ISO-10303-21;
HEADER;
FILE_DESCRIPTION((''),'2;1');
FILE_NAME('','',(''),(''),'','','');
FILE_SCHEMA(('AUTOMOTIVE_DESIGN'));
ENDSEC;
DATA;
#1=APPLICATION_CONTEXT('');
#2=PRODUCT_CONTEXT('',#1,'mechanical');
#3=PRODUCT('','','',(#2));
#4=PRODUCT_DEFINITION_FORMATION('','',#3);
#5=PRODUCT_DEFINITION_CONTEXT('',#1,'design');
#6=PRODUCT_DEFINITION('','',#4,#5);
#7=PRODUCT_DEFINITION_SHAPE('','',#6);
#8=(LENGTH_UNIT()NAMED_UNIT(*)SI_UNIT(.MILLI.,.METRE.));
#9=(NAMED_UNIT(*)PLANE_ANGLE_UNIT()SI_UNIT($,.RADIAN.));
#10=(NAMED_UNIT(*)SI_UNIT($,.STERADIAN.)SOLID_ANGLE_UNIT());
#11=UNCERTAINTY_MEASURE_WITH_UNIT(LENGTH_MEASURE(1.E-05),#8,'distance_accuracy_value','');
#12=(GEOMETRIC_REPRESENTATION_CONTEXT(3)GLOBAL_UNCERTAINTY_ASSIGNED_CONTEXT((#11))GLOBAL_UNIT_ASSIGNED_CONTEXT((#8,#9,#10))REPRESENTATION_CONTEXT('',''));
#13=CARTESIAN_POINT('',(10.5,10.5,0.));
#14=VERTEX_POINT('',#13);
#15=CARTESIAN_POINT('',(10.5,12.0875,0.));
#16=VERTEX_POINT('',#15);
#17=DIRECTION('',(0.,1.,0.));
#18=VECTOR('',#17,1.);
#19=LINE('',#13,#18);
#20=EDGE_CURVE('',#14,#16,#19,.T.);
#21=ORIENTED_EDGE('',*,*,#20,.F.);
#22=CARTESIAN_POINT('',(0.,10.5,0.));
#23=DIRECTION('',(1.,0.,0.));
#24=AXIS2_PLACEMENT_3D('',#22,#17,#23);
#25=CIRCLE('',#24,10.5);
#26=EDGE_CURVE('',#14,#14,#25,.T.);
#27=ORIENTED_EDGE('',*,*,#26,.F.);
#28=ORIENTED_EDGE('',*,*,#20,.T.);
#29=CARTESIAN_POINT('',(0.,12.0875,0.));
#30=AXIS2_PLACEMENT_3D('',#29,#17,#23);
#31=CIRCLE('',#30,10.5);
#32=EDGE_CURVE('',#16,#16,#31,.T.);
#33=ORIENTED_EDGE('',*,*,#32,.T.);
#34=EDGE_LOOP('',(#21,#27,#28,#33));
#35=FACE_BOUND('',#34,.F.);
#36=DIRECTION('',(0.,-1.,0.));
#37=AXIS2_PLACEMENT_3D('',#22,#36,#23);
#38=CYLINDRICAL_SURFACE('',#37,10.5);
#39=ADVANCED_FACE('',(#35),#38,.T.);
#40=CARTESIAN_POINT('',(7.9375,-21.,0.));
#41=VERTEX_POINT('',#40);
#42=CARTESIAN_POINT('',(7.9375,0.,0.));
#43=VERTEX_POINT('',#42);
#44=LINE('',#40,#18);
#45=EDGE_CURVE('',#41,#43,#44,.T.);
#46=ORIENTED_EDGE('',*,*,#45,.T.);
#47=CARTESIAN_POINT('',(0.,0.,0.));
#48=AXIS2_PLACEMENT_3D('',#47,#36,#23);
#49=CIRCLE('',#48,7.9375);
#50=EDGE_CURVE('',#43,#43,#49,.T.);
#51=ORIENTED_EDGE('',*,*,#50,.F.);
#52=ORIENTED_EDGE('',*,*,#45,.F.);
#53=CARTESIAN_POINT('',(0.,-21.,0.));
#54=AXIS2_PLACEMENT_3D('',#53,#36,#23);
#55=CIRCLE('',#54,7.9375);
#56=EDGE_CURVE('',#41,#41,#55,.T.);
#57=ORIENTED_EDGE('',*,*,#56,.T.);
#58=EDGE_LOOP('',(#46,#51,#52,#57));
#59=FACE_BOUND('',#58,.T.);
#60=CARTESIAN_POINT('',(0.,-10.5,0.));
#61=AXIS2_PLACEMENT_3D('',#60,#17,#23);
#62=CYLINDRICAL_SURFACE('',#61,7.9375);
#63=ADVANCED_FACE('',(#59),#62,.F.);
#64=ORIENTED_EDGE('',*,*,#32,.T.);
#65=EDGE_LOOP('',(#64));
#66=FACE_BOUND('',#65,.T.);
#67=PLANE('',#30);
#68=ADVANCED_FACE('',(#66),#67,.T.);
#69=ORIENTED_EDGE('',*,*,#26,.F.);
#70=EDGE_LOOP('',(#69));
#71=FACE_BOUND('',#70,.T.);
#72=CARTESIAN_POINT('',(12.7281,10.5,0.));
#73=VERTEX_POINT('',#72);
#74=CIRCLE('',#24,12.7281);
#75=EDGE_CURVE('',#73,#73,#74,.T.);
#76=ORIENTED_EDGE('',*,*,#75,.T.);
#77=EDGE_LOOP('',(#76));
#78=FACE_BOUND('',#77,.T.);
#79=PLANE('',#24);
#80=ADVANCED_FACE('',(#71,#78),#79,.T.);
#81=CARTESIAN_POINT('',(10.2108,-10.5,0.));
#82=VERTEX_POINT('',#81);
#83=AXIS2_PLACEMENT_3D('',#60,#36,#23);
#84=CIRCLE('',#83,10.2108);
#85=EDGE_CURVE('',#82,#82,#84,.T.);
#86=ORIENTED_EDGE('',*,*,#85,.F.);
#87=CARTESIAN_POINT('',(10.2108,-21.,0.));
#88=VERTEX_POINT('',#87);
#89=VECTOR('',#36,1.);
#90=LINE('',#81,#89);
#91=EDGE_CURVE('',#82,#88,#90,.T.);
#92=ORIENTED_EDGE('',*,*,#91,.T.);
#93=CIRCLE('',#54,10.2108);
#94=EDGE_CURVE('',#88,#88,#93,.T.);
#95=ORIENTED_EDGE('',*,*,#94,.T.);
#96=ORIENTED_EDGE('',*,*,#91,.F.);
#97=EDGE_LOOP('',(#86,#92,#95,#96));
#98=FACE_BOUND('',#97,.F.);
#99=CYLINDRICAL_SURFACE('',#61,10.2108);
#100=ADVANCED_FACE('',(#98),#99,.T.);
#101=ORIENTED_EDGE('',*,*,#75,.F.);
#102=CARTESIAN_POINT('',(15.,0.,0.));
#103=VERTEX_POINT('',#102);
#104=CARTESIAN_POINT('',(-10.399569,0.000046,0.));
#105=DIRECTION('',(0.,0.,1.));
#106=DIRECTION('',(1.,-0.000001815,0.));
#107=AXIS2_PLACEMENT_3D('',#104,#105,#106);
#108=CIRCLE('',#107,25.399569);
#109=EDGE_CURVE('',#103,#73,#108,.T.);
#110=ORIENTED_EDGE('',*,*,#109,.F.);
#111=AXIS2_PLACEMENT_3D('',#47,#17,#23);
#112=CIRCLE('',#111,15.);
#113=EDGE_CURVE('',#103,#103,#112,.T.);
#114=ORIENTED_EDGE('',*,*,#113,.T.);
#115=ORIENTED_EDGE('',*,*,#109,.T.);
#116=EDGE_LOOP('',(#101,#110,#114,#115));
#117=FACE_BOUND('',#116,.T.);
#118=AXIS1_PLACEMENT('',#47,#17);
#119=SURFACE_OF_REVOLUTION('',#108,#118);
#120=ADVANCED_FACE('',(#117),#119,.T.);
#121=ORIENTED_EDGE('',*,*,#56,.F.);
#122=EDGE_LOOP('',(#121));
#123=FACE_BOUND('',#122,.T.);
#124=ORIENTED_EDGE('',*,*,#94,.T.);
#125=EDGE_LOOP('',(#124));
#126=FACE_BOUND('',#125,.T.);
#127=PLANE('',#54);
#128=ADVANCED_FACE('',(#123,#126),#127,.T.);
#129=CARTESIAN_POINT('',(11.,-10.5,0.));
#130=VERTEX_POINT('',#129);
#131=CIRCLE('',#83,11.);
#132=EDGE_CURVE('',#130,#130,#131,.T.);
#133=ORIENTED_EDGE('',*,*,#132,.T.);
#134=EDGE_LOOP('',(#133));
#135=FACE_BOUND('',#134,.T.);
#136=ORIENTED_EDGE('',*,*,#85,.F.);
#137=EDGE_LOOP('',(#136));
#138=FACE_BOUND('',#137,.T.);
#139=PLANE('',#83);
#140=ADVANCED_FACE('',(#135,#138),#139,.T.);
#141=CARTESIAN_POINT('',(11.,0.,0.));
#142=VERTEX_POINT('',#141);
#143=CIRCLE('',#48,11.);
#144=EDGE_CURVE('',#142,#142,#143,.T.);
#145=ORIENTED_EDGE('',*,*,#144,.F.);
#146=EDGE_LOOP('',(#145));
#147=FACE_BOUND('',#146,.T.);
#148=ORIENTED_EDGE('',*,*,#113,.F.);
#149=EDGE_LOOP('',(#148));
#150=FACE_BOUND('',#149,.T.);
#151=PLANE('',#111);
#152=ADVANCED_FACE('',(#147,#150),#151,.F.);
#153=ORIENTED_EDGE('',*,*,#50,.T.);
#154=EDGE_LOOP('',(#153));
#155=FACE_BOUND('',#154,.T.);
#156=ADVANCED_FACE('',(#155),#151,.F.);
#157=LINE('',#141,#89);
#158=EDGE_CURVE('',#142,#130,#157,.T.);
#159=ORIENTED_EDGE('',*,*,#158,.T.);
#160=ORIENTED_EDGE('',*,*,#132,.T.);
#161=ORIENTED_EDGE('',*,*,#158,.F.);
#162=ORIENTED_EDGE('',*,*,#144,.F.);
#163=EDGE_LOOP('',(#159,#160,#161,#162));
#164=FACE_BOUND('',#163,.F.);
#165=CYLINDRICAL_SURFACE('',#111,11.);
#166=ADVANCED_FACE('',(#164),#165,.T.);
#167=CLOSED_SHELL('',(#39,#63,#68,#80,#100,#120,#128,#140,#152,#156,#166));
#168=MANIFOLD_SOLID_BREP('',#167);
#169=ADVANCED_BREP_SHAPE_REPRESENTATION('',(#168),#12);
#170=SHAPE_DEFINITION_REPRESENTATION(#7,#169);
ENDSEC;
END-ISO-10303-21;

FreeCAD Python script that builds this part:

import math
import FreeCAD as App
import Part
import Sketcher

V = App.Vector

doc = App.newDocument("Part")
body = doc.addObject("PartDesign::Body", "Body")

# Sketch on XY plane
sketch1 = doc.addObject("Sketcher::SketchObject", "Sketch")
body.addObject(sketch1)
sketch1.AttachmentSupport = (doc.XY_Plane, [""])
sketch1.MapMode = "FlatFace"
sketch1.addGeometry([
    Part.LineSegment(V(0, 10, 0), V(0, 0, 0)),
    Part.LineSegment(V(0, 0, 0), V(15, 0, 0)),
    Part.ArcOfCircle(Part.Circle(V(-10, 0, 0), V(0, 0, 1), 25), math.radians(0), math.radians(24)),
    Part.LineSegment(V(13, 10, 0), V(0, 10, 0)),
], False)
sketch1.addConstraint([
    Sketcher.Constraint("Coincident", 0, 2, 1, 1),
    Sketcher.Constraint("Coincident", 1, 2, 2, 1),
    Sketcher.Constraint("Coincident", 2, 2, 3, 1),
    Sketcher.Constraint("Coincident", 3, 2, 0, 1),
    Sketcher.Constraint("Vertical", 0),
    Sketcher.Constraint("Horizontal", 1),
    Sketcher.Constraint("Horizontal", 3),
    Sketcher.Constraint("Coincident", 0, 2, -1, 1),
    Sketcher.Constraint("PointOnObject", 2, 3, -1),
    Sketcher.Constraint("Radius", 2, 25.4),
    Sketcher.Constraint("DistanceY", 0, 2, 0, 1, 10.5),
    Sketcher.Constraint("DistanceX", 1, 1, 1, 2, 15.0),
])
revolution = doc.addObject("PartDesign::Revolution", "Revolution")
body.addObject(revolution)
revolution.Profile = sketch1
revolution.ReferenceAxis = (sketch1, ["V_Axis"])
revolution.Angle = 360

# Sketch on XZ plane
sketch2 = doc.addObject("Sketcher::SketchObject", "Sketch001")
body.addObject(sketch2)
sketch2.AttachmentSupport = (doc.XZ_Plane, [""])
sketch2.MapMode = "FlatFace"
sketch2.AttachmentOffset = App.Placement(V(0, 0, -10.5), App.Rotation())
sketch2.addGeometry(Part.Circle(V(0, 0, 0), V(0, 0, 1), 10), False)
sketch2.addConstraint([
    Sketcher.Constraint("Coincident", 0, 3, -1, 1),
    Sketcher.Constraint("Diameter", 0, 21.0),
])
pad1 = doc.addObject("PartDesign::Pad", "Pad")
body.addObject(pad1)
pad1.Profile = sketch2
pad1.Length = 1.5875
pad1.Reversed = True

# Sketch on XZ plane
sketch3 = doc.addObject("Sketcher::SketchObject", "Sketch002")
body.addObject(sketch3)
sketch3.AttachmentSupport = (doc.XZ_Plane, [""])
sketch3.MapMode = "FlatFace"
sketch3.addGeometry([
    Part.Circle(V(0, 0, 0), V(0, 0, 1), 11),
    Part.Circle(V(0, 0, 0), V(0, 0, 1), 8),
], False)
sketch3.addConstraint([
    Sketcher.Constraint("Coincident", 0, 3, -1, 1),
    Sketcher.Constraint("Coincident", 1, 3, -1, 1),
    Sketcher.Constraint("Diameter", 0, 22.0),
    Sketcher.Constraint("Diameter", 1, 15.875),
])
pad2 = doc.addObject("PartDesign::Pad", "Pad001")
body.addObject(pad2)
pad2.Profile = sketch3
pad2.Length = 10.5

# Sketch on XZ plane
sketch4 = doc.addObject("Sketcher::SketchObject", "Sketch003")
body.addObject(sketch4)
sketch4.AttachmentSupport = (doc.XZ_Plane, [""])
sketch4.MapMode = "FlatFace"
sketch4.AttachmentOffset = App.Placement(V(0, 0, 10.5), App.Rotation())
sketch4.addGeometry([
    Part.Circle(V(0, 0, 0), V(0, 0, 1), 10),
    Part.Circle(V(0, 0, 0), V(0, 0, 1), 8),
], False)
sketch4.addConstraint([
    Sketcher.Constraint("Coincident", 0, 3, -1, 1),
    Sketcher.Constraint("Coincident", 1, 3, -1, 1),
    Sketcher.Constraint("Diameter", 0, 20.4216),
    Sketcher.Constraint("Diameter", 1, 15.875),
])
pad3 = doc.addObject("PartDesign::Pad", "Pad002")
body.addObject(pad3)
pad3.Profile = sketch4
pad3.Length = 10.5

doc.recompute()
